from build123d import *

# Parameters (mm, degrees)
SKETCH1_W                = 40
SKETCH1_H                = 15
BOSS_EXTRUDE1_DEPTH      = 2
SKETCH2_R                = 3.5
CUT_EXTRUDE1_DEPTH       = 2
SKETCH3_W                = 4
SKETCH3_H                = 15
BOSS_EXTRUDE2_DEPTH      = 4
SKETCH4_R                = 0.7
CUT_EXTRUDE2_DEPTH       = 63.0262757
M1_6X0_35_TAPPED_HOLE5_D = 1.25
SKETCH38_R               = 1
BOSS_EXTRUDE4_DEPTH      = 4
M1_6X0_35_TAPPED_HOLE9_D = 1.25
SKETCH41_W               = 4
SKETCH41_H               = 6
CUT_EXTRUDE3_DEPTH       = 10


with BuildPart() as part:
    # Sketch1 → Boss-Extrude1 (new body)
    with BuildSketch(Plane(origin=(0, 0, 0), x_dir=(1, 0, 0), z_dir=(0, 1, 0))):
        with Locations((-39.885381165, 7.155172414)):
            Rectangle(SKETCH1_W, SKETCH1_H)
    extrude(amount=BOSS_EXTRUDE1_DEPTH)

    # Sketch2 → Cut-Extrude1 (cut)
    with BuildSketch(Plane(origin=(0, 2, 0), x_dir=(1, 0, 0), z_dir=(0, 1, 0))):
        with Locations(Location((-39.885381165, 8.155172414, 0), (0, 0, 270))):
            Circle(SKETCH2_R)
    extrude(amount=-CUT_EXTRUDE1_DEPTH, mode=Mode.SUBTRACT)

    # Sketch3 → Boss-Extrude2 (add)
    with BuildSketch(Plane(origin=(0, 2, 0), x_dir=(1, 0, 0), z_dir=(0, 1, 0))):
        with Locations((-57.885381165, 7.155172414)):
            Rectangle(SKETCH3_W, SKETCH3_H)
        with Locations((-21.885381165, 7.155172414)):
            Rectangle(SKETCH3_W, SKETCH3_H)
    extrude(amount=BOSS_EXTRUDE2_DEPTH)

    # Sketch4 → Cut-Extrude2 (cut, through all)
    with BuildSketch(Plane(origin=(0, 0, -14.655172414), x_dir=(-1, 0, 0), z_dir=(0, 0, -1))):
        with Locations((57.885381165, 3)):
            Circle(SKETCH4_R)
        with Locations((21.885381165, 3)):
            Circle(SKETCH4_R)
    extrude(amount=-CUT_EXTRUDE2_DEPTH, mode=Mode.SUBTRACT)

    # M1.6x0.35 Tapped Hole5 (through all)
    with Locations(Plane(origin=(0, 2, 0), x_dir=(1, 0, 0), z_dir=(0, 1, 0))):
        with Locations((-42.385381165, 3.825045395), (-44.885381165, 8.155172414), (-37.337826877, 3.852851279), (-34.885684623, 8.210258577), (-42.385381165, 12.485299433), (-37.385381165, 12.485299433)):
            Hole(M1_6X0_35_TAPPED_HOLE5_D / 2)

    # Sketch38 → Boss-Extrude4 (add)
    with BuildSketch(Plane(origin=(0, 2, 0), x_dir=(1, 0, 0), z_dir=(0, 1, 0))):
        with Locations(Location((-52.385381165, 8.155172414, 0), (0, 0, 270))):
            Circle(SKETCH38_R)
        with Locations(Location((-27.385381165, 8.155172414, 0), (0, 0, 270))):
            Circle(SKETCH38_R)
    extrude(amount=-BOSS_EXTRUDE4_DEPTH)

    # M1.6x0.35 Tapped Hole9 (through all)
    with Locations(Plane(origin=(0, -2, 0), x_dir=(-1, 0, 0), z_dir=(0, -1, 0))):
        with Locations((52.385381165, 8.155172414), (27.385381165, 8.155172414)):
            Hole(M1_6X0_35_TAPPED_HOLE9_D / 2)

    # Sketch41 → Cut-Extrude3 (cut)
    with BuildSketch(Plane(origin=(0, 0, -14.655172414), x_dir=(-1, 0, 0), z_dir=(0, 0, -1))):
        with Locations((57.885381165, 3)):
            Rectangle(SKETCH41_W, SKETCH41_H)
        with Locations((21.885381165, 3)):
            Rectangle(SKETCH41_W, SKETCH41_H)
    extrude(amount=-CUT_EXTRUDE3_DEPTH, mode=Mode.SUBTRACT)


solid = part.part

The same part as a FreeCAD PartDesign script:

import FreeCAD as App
import Part
import Sketcher
from FreeCAD import Vector
Q = App.Units.Quantity

doc = App.newDocument("Part")
body = doc.addObject("PartDesign::Body", "Body")

# Sketch on XZ plane
sketch1 = doc.addObject("Sketcher::SketchObject", "Sketch")
body.addObject(sketch1)
sketch1.AttachmentSupport = (doc.XZ_Plane, [""])
sketch1.MapMode = "FlatFace"
sketch1.addGeometry([
    Part.LineSegment(Vector(-60, -15, 0), Vector(-60, 0, 0)),
    Part.LineSegment(Vector(-60, 0, 0), Vector(-20, 0, 0)),
    Part.LineSegment(Vector(-20, 0, 0), Vector(-20, -15, 0)),
    Part.LineSegment(Vector(-20, -15, 0), Vector(-60, -15, 0)),
], False)
sketch1.addConstraint([
    Sketcher.Constraint("Coincident", 0, 2, 1, 1),
    Sketcher.Constraint("Coincident", 1, 2, 2, 1),
    Sketcher.Constraint("Coincident", 2, 2, 3, 1),
    Sketcher.Constraint("Coincident", 3, 2, 0, 1),
    Sketcher.Constraint("Vertical", 0),
    Sketcher.Constraint("Horizontal", 1),
    Sketcher.Constraint("Vertical", 2),
    Sketcher.Constraint("Horizontal", 3),
    Sketcher.Constraint("DistanceX", 1, 1, 1, 2, Q("40 mm")),
    Sketcher.Constraint("DistanceY", 0, 1, 0, 2, Q("15 mm")),
    Sketcher.Constraint("DistanceX", 0, 2, -1, 1, Q("59.885381 mm")),
    Sketcher.Constraint("DistanceY", -1, 1, 0, 2, Q("0.344828 mm")),
])
pad1 = doc.addObject("PartDesign::Pad", "Pad")
body.addObject(pad1)
pad1.Profile = sketch1
pad1.Length = 2
pad1.Reversed = True

# Sketch on XZ plane
sketch2 = doc.addObject("Sketcher::SketchObject", "Sketch001")
body.addObject(sketch2)
sketch2.AttachmentSupport = (doc.XZ_Plane, [""])
sketch2.MapMode = "FlatFace"
sketch2.AttachmentOffset = App.Placement(Vector(0, 0, -2), App.Rotation())
sketch2.addGeometry(Part.Circle(Vector(-39.9, -8.2, 0), Vector(0, 0, 1), 3.5), False)
sketch2.addConstraint([
    Sketcher.Constraint("Diameter", 0, Q("7 mm")),
    Sketcher.Constraint("DistanceX", 0, 3, -1, 1, Q("39.885381 mm")),
    Sketcher.Constraint("DistanceY", 0, 3, -1, 1, Q("8.155172 mm")),
])
pocket1 = doc.addObject("PartDesign::Pocket", "Pocket")
body.addObject(pocket1)
pocket1.Profile = sketch2
pocket1.Length = 2
pocket1.Reversed = True

# Sketch on XZ plane
sketch3 = doc.addObject("Sketcher::SketchObject", "Sketch002")
body.addObject(sketch3)
sketch3.AttachmentSupport = (doc.XZ_Plane, [""])
sketch3.MapMode = "FlatFace"
sketch3.AttachmentOffset = App.Placement(Vector(0, 0, -2), App.Rotation())
sketch3.addGeometry([
    Part.LineSegment(Vector(-59.9, -14.7, 0), Vector(-59.9, 0.3, 0)),  # 0
    Part.LineSegment(Vector(-59.9, 0.3, 0), Vector(-55.9, 0.3, 0)),  # 1
    Part.LineSegment(Vector(-55.9, 0.3, 0), Vector(-55.9, -14.7, 0)),  # 2
    Part.LineSegment(Vector(-55.9, -14.7, 0), Vector(-59.9, -14.7, 0)),  # 3
    Part.LineSegment(Vector(-23.9, -14.7, 0), Vector(-23.9, 0.3, 0)),  # 4
    Part.LineSegment(Vector(-23.9, 0.3, 0), Vector(-19.9, 0.3, 0)),  # 5
    Part.LineSegment(Vector(-19.9, 0.3, 0), Vector(-19.9, -14.7, 0)),  # 6
    Part.LineSegment(Vector(-19.9, -14.7, 0), Vector(-23.9, -14.7, 0)),  # 7
], False)
sketch3.addConstraint([
    Sketcher.Constraint("Coincident", 0, 2, 1, 1),
    Sketcher.Constraint("Coincident", 1, 2, 2, 1),
    Sketcher.Constraint("Coincident", 2, 2, 3, 1),
    Sketcher.Constraint("Coincident", 3, 2, 0, 1),
    Sketcher.Constraint("Coincident", 4, 2, 5, 1),
    Sketcher.Constraint("Coincident", 5, 2, 6, 1),
    Sketcher.Constraint("Coincident", 6, 2, 7, 1),
    Sketcher.Constraint("Coincident", 7, 2, 4, 1),
    Sketcher.Constraint("Vertical", 0),
    Sketcher.Constraint("Horizontal", 1),
    Sketcher.Constraint("Vertical", 2),
    Sketcher.Constraint("Horizontal", 3),
    Sketcher.Constraint("Vertical", 4),
    Sketcher.Constraint("Horizontal", 5),
    Sketcher.Constraint("Vertical", 6),
    Sketcher.Constraint("Horizontal", 7),
    Sketcher.Constraint("Horizontal", 1, 2, 4, 2),
    Sketcher.Constraint("Horizontal", 3, 2, 6, 2),
    Sketcher.Constraint("Equal", 3, 5),
    Sketcher.Constraint("DistanceX", 1, 1, 1, 2, Q("4 mm")),
    Sketcher.Constraint("DistanceY", 0, 1, 0, 2, Q("15 mm")),
    Sketcher.Constraint("DistanceX", 1, 2, 4, 2, Q("32 mm")),
    Sketcher.Constraint("DistanceX", 0, 2, -1, 1, Q("59.885381 mm")),
    Sketcher.Constraint("DistanceY", -1, 1, 0, 2, Q("0.344828 mm")),
])
pad2 = doc.addObject("PartDesign::Pad", "Pad001")
body.addObject(pad2)
pad2.Profile = sketch3
pad2.Length = 4
pad2.Reversed = True

# Sketch on XY plane
sketch4 = doc.addObject("Sketcher::SketchObject", "Sketch003")
body.addObject(sketch4)
sketch4.AttachmentSupport = (doc.XY_Plane, [""])
sketch4.MapMode = "FlatFace"
sketch4.AttachmentOffset = App.Placement(Vector(0, 0, -14.655172), App.Rotation())
sketch4.addGeometry([
    Part.Circle(Vector(-57.9, 3, 0), Vector(0, 0, 1), 0.7),
    Part.Circle(Vector(-21.9, 3, 0), Vector(0, 0, 1), 0.7),
], False)
sketch4.addConstraint([
    Sketcher.Constraint("Equal", 0, 1),
    Sketcher.Constraint("Horizontal", 0, 3, 1, 3),
    Sketcher.Constraint("Diameter", 0, Q("1.4 mm")),
    Sketcher.Constraint("DistanceY", -1, 1, 0, 3, Q("3 mm")),
    Sketcher.Constraint("DistanceX", 0, 3, 1, 3, Q("36 mm")),
    Sketcher.Constraint("DistanceX", 0, 3, -1, 1, Q("57.885381 mm")),
])
pocket2 = doc.addObject("PartDesign::Pocket", "Pocket001")
body.addObject(pocket2)
pocket2.Profile = sketch4
pocket2.Type = "ThroughAll"
pocket2.Reversed = True

# Sketch on XZ plane
sketch5 = doc.addObject("Sketcher::SketchObject", "Sketch004")
body.addObject(sketch5)
sketch5.AttachmentSupport = (doc.XZ_Plane, [""])
sketch5.MapMode = "FlatFace"
sketch5.AttachmentOffset = App.Placement(Vector(0, 0, -2), App.Rotation())
sketch5.addGeometry([
    Part.Circle(Vector(-42.4, -3.8, 0), Vector(0, 0, 1), 0.6),  # 0
    Part.Circle(Vector(-44.9, -8.2, 0), Vector(0, 0, 1), 0.6),  # 1
    Part.Circle(Vector(-37.3, -3.9, 0), Vector(0, 0, 1), 0.6),  # 2
    Part.Circle(Vector(-34.9, -8.2, 0), Vector(0, 0, 1), 0.6),  # 3
    Part.Circle(Vector(-42.4, -12.5, 0), Vector(0, 0, 1), 0.6),  # 4
    Part.Circle(Vector(-37.4, -12.5, 0), Vector(0, 0, 1), 0.6),  # 5
], False)
sketch5.addConstraint([
    Sketcher.Constraint("Equal", 0, 1),
    Sketcher.Constraint("Equal", 1, 2),
    Sketcher.Constraint("Equal", 2, 3),
    Sketcher.Constraint("Equal", 3, 4),
    Sketcher.Constraint("Equal", 4, 5),
    Sketcher.Constraint("Horizontal", 4, 3, 5, 3),
    Sketcher.Constraint("Vertical", 0, 3, 4, 3),
    Sketcher.Constraint("Diameter", 0, Q("1.25 mm")),
    Sketcher.Constraint("DistanceX", 4, 3, 5, 3, Q("5 mm")),
    Sketcher.Constraint("DistanceX", 1, 3, 0, 3, Q("2.5 mm")),
    Sketcher.Constraint("DistanceY", 4, 3, -1, 1, Q("12.485299 mm")),
    Sketcher.Constraint("DistanceX", 0, 3, -1, 1, Q("42.385381 mm")),
    Sketcher.Constraint("DistanceY", 2, 3, -1, 1, Q("3.852851 mm")),
    Sketcher.Constraint("DistanceY", 3, 3, -1, 1, Q("8.210259 mm")),
    Sketcher.Constraint("DistanceY", 1, 3, 2, 3, Q("4.302321 mm")),
    Sketcher.Constraint("DistanceY", 0, 3, -1, 1, Q("3.825045 mm")),
    Sketcher.Constraint("DistanceX", 2, 3, -1, 1, Q("37.337827 mm")),
    Sketcher.Constraint("DistanceX", 3, 3, -1, 1, Q("34.885685 mm")),
])
doc.recompute()
hole = doc.addObject("PartDesign::Hole", "Hole")
body.addObject(hole)
hole.Profile = sketch5
hole.ThreadType = "None"
hole.Diameter = 1.25
hole.DepthType = "ThroughAll"
hole.Reversed = True

# Sketch on XZ plane
sketch6 = doc.addObject("Sketcher::SketchObject", "Sketch005")
body.addObject(sketch6)
sketch6.AttachmentSupport = (doc.XZ_Plane, [""])
sketch6.MapMode = "FlatFace"
sketch6.AttachmentOffset = App.Placement(Vector(0, 0, -2), App.Rotation())
sketch6.addGeometry([
    Part.Circle(Vector(-52.4, -8.2, 0), Vector(0, 0, 1), 1),
    Part.Circle(Vector(-27.4, -8.2, 0), Vector(0, 0, 1), 1),
], False)
sketch6.addConstraint([
    Sketcher.Constraint("Equal", 0, 1),
    Sketcher.Constraint("Horizontal", 0, 3, 1, 3),
    Sketcher.Constraint("Diameter", 0, Q("2 mm")),
    Sketcher.Constraint("DistanceX", 0, 3, 1, 3, Q("25 mm")),
    Sketcher.Constraint("DistanceX", 0, 3, -1, 1, Q("52.385381 mm")),
    Sketcher.Constraint("DistanceY", 0, 3, -1, 1, Q("8.155172 mm")),
])
pad3 = doc.addObject("PartDesign::Pad", "Pad002")
body.addObject(pad3)
pad3.Profile = sketch6
pad3.Length = 4

# Sketch on XZ plane
sketch7 = doc.addObject("Sketcher::SketchObject", "Sketch006")
body.addObject(sketch7)
sketch7.AttachmentSupport = (doc.XZ_Plane, [""])
sketch7.MapMode = "FlatFace"
sketch7.AttachmentOffset = App.Placement(Vector(0, 0, 2), App.Rotation())
sketch7.addGeometry([
    Part.Circle(Vector(-52.4, -8.2, 0), Vector(0, 0, 1), 0.6),
    Part.Circle(Vector(-27.4, -8.2, 0), Vector(0, 0, 1), 0.6),
], False)
sketch7.addConstraint([
    Sketcher.Constraint("Equal", 0, 1),
    Sketcher.Constraint("Horizontal", 0, 3, 1, 3),
    Sketcher.Constraint("Diameter", 0, Q("1.25 mm")),
    Sketcher.Constraint("DistanceX", 0, 3, 1, 3, Q("25 mm")),
    Sketcher.Constraint("DistanceX", 0, 3, -1, 1, Q("52.385381 mm")),
    Sketcher.Constraint("DistanceY", 0, 3, -1, 1, Q("8.155172 mm")),
])
doc.recompute()
hole2 = doc.addObject("PartDesign::Hole", "Hole001")
body.addObject(hole2)
hole2.Profile = sketch7
hole2.ThreadType = "None"
hole2.Diameter = 1.25
hole2.DepthType = "ThroughAll"

# Sketch on XY plane
sketch8 = doc.addObject("Sketcher::SketchObject", "Sketch007")
body.addObject(sketch8)
sketch8.AttachmentSupport = (doc.XY_Plane, [""])
sketch8.MapMode = "FlatFace"
sketch8.AttachmentOffset = App.Placement(Vector(0, 0, -14.655172), App.Rotation())
sketch8.addGeometry([
    Part.LineSegment(Vector(-55.9, 6, 0), Vector(-55.9, 0, 0)),  # 0
    Part.LineSegment(Vector(-55.9, 0, 0), Vector(-59.9, 0, 0)),  # 1
    Part.LineSegment(Vector(-59.9, 0, 0), Vector(-59.9, 6, 0)),  # 2
    Part.LineSegment(Vector(-59.9, 6, 0), Vector(-55.9, 6, 0)),  # 3
    Part.LineSegment(Vector(-19.9, 6, 0), Vector(-19.9, 0, 0)),  # 4
    Part.LineSegment(Vector(-19.9, 0, 0), Vector(-23.9, 0, 0)),  # 5
    Part.LineSegment(Vector(-23.9, 0, 0), Vector(-23.9, 6, 0)),  # 6
    Part.LineSegment(Vector(-23.9, 6, 0), Vector(-19.9, 6, 0)),  # 7
], False)
sketch8.addConstraint([
    Sketcher.Constraint("Coincident", 0, 2, 1, 1),
    Sketcher.Constraint("Coincident", 1, 2, 2, 1),
    Sketcher.Constraint("Coincident", 2, 2, 3, 1),
    Sketcher.Constraint("Coincident", 3, 2, 0, 1),
    Sketcher.Constraint("Coincident", 4, 2, 5, 1),
    Sketcher.Constraint("Coincident", 5, 2, 6, 1),
    Sketcher.Constraint("Coincident", 6, 2, 7, 1),
    Sketcher.Constraint("Coincident", 7, 2, 4, 1),
    Sketcher.Constraint("Vertical", 0),
    Sketcher.Constraint("Horizontal", 1),
    Sketcher.Constraint("Vertical", 2),
    Sketcher.Constraint("Horizontal", 3),
    Sketcher.Constraint("Vertical", 4),
    Sketcher.Constraint("Horizontal", 5),
    Sketcher.Constraint("Vertical", 6),
    Sketcher.Constraint("Horizontal", 7),
    Sketcher.Constraint("PointOnObject", 0, 2, -1),
    Sketcher.Constraint("PointOnObject", 4, 2, -1),
    Sketcher.Constraint("Horizontal", 3, 2, 6, 2),
    Sketcher.Constraint("Equal", 3, 5),
    Sketcher.Constraint("DistanceX", 1, 2, 1, 1, Q("4 mm")),
    Sketcher.Constraint("DistanceY", 0, 2, 0, 1, Q("6 mm")),
    Sketcher.Constraint("DistanceX", 0, 2, 4, 2, Q("36 mm")),
    Sketcher.Constraint("DistanceX", 0, 2, -1, 1, Q("55.885381 mm")),
])
pocket3 = doc.addObject("PartDesign::Pocket", "Pocket002")
body.addObject(pocket3)
pocket3.Profile = sketch8
pocket3.Length = 10
pocket3.Reversed = True

doc.recompute()
